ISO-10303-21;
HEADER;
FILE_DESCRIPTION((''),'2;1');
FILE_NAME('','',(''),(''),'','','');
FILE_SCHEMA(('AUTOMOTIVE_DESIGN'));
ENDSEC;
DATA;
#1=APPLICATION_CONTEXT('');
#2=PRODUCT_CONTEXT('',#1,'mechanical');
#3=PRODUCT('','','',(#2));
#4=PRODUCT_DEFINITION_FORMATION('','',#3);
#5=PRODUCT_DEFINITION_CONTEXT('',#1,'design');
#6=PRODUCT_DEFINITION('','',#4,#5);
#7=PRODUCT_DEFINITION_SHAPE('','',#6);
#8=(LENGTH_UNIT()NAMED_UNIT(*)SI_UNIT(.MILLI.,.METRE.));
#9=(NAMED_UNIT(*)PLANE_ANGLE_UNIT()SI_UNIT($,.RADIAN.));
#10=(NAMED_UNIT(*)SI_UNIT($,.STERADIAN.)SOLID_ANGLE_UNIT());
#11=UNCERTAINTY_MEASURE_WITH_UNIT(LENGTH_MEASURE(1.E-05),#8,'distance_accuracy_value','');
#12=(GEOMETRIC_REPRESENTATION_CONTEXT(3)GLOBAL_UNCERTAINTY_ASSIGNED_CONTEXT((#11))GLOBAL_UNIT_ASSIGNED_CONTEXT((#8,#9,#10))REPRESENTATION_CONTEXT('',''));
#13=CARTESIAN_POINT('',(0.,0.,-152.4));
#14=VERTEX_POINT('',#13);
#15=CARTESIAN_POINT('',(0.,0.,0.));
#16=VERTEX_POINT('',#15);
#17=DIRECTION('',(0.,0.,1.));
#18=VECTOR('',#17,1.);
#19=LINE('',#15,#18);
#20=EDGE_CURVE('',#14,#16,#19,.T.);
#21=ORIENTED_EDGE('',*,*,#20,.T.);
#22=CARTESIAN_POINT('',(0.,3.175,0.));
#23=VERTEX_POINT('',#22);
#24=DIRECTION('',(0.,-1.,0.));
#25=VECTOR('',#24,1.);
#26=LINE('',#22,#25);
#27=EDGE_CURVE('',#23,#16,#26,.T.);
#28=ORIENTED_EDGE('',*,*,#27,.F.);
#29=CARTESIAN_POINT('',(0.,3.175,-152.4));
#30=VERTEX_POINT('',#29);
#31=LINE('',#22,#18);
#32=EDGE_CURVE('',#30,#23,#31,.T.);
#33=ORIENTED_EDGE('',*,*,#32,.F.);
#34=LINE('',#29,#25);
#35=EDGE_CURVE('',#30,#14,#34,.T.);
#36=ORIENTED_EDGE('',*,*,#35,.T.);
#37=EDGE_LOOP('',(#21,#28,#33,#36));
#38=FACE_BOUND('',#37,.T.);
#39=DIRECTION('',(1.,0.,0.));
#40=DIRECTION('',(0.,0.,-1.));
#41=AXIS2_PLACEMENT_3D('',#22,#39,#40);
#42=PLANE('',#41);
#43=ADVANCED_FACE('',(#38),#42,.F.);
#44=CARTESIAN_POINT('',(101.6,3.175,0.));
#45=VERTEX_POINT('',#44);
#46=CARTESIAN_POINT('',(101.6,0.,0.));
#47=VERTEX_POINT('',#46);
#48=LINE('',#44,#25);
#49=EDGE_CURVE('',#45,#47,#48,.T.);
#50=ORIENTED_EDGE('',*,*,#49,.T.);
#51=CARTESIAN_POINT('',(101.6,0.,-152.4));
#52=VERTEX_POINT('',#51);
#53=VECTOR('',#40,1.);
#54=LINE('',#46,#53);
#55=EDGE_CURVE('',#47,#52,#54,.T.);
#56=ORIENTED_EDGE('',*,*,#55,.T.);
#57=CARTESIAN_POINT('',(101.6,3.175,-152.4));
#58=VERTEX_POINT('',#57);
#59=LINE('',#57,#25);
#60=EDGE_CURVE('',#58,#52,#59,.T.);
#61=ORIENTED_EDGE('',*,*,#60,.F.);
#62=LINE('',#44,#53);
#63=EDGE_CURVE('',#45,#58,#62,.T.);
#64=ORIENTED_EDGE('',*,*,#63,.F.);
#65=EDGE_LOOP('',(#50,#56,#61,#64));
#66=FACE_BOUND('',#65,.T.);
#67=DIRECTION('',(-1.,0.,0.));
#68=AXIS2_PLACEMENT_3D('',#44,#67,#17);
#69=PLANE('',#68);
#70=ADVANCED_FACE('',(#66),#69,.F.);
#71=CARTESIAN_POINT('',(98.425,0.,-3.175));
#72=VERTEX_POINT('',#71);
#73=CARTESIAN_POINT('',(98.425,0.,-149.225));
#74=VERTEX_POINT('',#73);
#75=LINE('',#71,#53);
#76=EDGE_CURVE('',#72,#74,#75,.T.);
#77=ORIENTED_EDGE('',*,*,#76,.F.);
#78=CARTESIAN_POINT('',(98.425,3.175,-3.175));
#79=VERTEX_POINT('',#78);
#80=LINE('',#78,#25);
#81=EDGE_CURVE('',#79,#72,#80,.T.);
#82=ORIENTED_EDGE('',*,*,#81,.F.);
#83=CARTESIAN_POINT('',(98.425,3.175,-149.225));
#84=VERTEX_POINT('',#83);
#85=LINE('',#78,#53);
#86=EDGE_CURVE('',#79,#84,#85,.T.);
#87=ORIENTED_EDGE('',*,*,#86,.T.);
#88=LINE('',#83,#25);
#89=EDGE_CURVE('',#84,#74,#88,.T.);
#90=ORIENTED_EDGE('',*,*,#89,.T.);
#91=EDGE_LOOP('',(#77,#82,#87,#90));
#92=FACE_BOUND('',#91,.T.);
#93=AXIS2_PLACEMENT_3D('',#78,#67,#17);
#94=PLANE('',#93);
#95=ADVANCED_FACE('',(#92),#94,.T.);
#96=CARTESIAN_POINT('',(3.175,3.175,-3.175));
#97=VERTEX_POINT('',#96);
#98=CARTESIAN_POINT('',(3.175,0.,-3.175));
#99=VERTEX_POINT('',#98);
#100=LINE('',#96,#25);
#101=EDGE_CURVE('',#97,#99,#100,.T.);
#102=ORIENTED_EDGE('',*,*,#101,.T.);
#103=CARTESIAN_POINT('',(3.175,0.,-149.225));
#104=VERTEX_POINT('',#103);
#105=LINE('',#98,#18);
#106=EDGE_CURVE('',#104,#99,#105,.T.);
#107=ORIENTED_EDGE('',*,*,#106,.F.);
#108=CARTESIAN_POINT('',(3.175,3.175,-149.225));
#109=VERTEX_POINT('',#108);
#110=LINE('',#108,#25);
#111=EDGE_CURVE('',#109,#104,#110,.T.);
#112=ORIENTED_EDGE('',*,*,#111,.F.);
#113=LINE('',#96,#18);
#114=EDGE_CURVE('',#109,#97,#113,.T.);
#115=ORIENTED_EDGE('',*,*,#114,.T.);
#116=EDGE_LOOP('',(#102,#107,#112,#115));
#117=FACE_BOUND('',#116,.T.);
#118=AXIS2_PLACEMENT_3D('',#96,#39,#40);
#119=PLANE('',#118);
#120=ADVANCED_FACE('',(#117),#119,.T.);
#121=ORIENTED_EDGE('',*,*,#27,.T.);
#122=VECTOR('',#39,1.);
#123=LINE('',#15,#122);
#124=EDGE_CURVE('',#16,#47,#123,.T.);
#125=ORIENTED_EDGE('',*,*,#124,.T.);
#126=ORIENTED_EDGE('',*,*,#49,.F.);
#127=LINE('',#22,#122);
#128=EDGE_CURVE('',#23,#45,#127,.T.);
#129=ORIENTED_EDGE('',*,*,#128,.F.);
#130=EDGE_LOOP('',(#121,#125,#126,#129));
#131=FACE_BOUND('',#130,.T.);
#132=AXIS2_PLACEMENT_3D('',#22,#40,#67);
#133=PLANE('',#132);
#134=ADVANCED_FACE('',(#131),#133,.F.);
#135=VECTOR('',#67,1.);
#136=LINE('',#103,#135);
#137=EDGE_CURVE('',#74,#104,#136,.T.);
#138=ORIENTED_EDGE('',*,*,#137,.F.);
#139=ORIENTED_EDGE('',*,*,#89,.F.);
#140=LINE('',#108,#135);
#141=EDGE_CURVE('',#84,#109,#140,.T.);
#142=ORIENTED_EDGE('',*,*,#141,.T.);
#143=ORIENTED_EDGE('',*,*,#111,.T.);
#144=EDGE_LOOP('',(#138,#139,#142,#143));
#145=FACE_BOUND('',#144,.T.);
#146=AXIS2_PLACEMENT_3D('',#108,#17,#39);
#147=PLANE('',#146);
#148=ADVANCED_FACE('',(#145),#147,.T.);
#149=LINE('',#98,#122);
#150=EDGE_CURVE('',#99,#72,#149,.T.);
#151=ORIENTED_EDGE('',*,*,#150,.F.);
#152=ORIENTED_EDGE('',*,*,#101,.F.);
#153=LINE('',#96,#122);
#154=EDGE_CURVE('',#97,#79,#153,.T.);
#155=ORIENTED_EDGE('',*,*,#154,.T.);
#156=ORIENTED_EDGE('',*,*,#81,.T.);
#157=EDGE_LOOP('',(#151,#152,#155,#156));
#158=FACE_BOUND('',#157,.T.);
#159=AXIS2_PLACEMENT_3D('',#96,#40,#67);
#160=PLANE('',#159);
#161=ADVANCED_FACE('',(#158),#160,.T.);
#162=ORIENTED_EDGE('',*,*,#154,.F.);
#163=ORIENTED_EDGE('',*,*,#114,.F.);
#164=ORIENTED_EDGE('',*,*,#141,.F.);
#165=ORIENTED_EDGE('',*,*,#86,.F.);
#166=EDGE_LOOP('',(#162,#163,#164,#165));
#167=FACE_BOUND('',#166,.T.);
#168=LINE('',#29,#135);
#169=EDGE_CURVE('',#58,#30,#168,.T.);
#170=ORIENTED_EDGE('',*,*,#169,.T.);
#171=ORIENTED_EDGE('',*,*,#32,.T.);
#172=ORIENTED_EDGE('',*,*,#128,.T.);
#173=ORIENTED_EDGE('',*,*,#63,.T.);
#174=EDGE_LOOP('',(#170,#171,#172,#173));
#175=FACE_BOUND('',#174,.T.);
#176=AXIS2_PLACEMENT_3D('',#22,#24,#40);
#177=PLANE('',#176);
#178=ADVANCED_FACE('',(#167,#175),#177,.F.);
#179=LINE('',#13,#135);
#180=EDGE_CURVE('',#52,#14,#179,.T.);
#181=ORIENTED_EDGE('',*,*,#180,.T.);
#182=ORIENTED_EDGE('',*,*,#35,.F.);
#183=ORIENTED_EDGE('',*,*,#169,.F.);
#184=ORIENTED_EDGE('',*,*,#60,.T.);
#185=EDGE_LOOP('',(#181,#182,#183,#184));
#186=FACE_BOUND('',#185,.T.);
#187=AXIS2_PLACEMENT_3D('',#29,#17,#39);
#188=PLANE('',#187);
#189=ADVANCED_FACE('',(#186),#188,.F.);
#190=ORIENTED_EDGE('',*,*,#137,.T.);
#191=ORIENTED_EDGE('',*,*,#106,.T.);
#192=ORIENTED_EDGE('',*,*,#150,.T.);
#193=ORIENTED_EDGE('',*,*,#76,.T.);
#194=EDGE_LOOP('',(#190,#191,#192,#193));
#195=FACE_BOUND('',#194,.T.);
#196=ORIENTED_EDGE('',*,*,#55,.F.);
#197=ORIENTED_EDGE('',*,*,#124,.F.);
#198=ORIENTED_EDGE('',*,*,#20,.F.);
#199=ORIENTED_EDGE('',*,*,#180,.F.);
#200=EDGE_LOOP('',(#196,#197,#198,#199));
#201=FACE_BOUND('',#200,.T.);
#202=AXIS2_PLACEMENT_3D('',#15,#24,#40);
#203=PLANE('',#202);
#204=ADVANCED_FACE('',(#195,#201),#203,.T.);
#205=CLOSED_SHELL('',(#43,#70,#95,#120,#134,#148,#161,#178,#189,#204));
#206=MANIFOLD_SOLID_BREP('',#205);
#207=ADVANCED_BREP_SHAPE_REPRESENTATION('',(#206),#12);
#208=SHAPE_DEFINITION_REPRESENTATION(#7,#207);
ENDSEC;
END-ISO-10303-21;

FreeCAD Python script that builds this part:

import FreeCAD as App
import Part
import Sketcher
Q = App.Units.Quantity

doc = App.newDocument("Part")
params = doc.addObject("Spreadsheet::Sheet", "Params")
for row, (alias, value) in enumerate([
    ("sketch1_width", "4 in"),
    ("sketch1_height", "6 in"),
    ("sketch1_width2", "3.75 in"),
    ("sketch1_height2", "5.75 in"),
    ("pad1_length", "0.125 in"),
], start=1):
    params.set(f"A{row}", alias)
    params.set(f"B{row}", "=" + value)
    params.setAlias(f"B{row}", alias)

body = doc.addObject("PartDesign::Body", "Body")

sketch1 = body.newObject("Sketcher::SketchObject", "Sketch")
sketch1.AttachmentSupport = (doc.getObject("XZ_Plane"), [""])
sketch1.MapMode = "FlatFace"
sketch1.addGeometry(Part.LineSegment(App.Vector(0, -152, 0), App.Vector(0, 0, 0)), False)
sketch1.addGeometry(Part.LineSegment(App.Vector(0, 0, 0), App.Vector(102, 0, 0)), False)
sketch1.addGeometry(Part.LineSegment(App.Vector(102, 0, 0), App.Vector(102, -152, 0)), False)
sketch1.addGeometry(Part.LineSegment(App.Vector(102, -152, 0), App.Vector(0, -152, 0)), False)
sketch1.addGeometry(Part.LineSegment(App.Vector(98, -3, 0), App.Vector(3, -3, 0)), False)
sketch1.addGeometry(Part.LineSegment(App.Vector(3, -3, 0), App.Vector(3, -149, 0)), False)
sketch1.addGeometry(Part.LineSegment(App.Vector(3, -149, 0), App.Vector(98, -149, 0)), False)
sketch1.addGeometry(Part.LineSegment(App.Vector(98, -149, 0), App.Vector(98, -3, 0)), False)
sketch1.addConstraint(Sketcher.Constraint("Coincident", 0, 2, 1, 1))
sketch1.addConstraint(Sketcher.Constraint("Coincident", 1, 2, 2, 1))
sketch1.addConstraint(Sketcher.Constraint("Coincident", 2, 2, 3, 1))
sketch1.addConstraint(Sketcher.Constraint("Coincident", 3, 2, 0, 1))
sketch1.addConstraint(Sketcher.Constraint("Coincident", 4, 2, 5, 1))
sketch1.addConstraint(Sketcher.Constraint("Coincident", 5, 2, 6, 1))
sketch1.addConstraint(Sketcher.Constraint("Coincident", 6, 2, 7, 1))
sketch1.addConstraint(Sketcher.Constraint("Coincident", 7, 2, 4, 1))
sketch1.addConstraint(Sketcher.Constraint("Vertical", 0))
sketch1.addConstraint(Sketcher.Constraint("Horizontal", 1))
sketch1.addConstraint(Sketcher.Constraint("Vertical", 2))
sketch1.addConstraint(Sketcher.Constraint("Horizontal", 3))
sketch1.addConstraint(Sketcher.Constraint("Horizontal", 4))
sketch1.addConstraint(Sketcher.Constraint("Vertical", 5))
sketch1.addConstraint(Sketcher.Constraint("Horizontal", 6))
sketch1.addConstraint(Sketcher.Constraint("Vertical", 7))
sketch1.addConstraint(Sketcher.Constraint("Coincident", 0, 2, -1, 1))
sketch1.addConstraint(Sketcher.Constraint("DistanceX", 1, 1, 1, 2, Q("4 in")))
sketch1.addConstraint(Sketcher.Constraint("DistanceY", 0, 1, 0, 2, Q("6 in")))
sketch1.addConstraint(Sketcher.Constraint("DistanceX", 4, 2, 4, 1, Q("3.75 in")))
sketch1.addConstraint(Sketcher.Constraint("DistanceY", 5, 2, 5, 1, Q("5.75 in")))
sketch1.addConstraint(Sketcher.Constraint("DistanceX", -1, 1, 4, 2, Q("0.125 in")))
sketch1.addConstraint(Sketcher.Constraint("DistanceY", 4, 2, -1, 1, Q("0.125 in")))
sketch1.setExpression("Constraints[17]", "Params.sketch1_width")
sketch1.setExpression("Constraints[18]", "Params.sketch1_height")
sketch1.setExpression("Constraints[19]", "Params.sketch1_width2")
sketch1.setExpression("Constraints[20]", "Params.sketch1_height2")
pad1 = body.newObject("PartDesign::Pad", "Pad")
pad1.Profile = sketch1
pad1.setExpression("Length", "Params.pad1_length")
pad1.Reversed = True

doc.recompute()
